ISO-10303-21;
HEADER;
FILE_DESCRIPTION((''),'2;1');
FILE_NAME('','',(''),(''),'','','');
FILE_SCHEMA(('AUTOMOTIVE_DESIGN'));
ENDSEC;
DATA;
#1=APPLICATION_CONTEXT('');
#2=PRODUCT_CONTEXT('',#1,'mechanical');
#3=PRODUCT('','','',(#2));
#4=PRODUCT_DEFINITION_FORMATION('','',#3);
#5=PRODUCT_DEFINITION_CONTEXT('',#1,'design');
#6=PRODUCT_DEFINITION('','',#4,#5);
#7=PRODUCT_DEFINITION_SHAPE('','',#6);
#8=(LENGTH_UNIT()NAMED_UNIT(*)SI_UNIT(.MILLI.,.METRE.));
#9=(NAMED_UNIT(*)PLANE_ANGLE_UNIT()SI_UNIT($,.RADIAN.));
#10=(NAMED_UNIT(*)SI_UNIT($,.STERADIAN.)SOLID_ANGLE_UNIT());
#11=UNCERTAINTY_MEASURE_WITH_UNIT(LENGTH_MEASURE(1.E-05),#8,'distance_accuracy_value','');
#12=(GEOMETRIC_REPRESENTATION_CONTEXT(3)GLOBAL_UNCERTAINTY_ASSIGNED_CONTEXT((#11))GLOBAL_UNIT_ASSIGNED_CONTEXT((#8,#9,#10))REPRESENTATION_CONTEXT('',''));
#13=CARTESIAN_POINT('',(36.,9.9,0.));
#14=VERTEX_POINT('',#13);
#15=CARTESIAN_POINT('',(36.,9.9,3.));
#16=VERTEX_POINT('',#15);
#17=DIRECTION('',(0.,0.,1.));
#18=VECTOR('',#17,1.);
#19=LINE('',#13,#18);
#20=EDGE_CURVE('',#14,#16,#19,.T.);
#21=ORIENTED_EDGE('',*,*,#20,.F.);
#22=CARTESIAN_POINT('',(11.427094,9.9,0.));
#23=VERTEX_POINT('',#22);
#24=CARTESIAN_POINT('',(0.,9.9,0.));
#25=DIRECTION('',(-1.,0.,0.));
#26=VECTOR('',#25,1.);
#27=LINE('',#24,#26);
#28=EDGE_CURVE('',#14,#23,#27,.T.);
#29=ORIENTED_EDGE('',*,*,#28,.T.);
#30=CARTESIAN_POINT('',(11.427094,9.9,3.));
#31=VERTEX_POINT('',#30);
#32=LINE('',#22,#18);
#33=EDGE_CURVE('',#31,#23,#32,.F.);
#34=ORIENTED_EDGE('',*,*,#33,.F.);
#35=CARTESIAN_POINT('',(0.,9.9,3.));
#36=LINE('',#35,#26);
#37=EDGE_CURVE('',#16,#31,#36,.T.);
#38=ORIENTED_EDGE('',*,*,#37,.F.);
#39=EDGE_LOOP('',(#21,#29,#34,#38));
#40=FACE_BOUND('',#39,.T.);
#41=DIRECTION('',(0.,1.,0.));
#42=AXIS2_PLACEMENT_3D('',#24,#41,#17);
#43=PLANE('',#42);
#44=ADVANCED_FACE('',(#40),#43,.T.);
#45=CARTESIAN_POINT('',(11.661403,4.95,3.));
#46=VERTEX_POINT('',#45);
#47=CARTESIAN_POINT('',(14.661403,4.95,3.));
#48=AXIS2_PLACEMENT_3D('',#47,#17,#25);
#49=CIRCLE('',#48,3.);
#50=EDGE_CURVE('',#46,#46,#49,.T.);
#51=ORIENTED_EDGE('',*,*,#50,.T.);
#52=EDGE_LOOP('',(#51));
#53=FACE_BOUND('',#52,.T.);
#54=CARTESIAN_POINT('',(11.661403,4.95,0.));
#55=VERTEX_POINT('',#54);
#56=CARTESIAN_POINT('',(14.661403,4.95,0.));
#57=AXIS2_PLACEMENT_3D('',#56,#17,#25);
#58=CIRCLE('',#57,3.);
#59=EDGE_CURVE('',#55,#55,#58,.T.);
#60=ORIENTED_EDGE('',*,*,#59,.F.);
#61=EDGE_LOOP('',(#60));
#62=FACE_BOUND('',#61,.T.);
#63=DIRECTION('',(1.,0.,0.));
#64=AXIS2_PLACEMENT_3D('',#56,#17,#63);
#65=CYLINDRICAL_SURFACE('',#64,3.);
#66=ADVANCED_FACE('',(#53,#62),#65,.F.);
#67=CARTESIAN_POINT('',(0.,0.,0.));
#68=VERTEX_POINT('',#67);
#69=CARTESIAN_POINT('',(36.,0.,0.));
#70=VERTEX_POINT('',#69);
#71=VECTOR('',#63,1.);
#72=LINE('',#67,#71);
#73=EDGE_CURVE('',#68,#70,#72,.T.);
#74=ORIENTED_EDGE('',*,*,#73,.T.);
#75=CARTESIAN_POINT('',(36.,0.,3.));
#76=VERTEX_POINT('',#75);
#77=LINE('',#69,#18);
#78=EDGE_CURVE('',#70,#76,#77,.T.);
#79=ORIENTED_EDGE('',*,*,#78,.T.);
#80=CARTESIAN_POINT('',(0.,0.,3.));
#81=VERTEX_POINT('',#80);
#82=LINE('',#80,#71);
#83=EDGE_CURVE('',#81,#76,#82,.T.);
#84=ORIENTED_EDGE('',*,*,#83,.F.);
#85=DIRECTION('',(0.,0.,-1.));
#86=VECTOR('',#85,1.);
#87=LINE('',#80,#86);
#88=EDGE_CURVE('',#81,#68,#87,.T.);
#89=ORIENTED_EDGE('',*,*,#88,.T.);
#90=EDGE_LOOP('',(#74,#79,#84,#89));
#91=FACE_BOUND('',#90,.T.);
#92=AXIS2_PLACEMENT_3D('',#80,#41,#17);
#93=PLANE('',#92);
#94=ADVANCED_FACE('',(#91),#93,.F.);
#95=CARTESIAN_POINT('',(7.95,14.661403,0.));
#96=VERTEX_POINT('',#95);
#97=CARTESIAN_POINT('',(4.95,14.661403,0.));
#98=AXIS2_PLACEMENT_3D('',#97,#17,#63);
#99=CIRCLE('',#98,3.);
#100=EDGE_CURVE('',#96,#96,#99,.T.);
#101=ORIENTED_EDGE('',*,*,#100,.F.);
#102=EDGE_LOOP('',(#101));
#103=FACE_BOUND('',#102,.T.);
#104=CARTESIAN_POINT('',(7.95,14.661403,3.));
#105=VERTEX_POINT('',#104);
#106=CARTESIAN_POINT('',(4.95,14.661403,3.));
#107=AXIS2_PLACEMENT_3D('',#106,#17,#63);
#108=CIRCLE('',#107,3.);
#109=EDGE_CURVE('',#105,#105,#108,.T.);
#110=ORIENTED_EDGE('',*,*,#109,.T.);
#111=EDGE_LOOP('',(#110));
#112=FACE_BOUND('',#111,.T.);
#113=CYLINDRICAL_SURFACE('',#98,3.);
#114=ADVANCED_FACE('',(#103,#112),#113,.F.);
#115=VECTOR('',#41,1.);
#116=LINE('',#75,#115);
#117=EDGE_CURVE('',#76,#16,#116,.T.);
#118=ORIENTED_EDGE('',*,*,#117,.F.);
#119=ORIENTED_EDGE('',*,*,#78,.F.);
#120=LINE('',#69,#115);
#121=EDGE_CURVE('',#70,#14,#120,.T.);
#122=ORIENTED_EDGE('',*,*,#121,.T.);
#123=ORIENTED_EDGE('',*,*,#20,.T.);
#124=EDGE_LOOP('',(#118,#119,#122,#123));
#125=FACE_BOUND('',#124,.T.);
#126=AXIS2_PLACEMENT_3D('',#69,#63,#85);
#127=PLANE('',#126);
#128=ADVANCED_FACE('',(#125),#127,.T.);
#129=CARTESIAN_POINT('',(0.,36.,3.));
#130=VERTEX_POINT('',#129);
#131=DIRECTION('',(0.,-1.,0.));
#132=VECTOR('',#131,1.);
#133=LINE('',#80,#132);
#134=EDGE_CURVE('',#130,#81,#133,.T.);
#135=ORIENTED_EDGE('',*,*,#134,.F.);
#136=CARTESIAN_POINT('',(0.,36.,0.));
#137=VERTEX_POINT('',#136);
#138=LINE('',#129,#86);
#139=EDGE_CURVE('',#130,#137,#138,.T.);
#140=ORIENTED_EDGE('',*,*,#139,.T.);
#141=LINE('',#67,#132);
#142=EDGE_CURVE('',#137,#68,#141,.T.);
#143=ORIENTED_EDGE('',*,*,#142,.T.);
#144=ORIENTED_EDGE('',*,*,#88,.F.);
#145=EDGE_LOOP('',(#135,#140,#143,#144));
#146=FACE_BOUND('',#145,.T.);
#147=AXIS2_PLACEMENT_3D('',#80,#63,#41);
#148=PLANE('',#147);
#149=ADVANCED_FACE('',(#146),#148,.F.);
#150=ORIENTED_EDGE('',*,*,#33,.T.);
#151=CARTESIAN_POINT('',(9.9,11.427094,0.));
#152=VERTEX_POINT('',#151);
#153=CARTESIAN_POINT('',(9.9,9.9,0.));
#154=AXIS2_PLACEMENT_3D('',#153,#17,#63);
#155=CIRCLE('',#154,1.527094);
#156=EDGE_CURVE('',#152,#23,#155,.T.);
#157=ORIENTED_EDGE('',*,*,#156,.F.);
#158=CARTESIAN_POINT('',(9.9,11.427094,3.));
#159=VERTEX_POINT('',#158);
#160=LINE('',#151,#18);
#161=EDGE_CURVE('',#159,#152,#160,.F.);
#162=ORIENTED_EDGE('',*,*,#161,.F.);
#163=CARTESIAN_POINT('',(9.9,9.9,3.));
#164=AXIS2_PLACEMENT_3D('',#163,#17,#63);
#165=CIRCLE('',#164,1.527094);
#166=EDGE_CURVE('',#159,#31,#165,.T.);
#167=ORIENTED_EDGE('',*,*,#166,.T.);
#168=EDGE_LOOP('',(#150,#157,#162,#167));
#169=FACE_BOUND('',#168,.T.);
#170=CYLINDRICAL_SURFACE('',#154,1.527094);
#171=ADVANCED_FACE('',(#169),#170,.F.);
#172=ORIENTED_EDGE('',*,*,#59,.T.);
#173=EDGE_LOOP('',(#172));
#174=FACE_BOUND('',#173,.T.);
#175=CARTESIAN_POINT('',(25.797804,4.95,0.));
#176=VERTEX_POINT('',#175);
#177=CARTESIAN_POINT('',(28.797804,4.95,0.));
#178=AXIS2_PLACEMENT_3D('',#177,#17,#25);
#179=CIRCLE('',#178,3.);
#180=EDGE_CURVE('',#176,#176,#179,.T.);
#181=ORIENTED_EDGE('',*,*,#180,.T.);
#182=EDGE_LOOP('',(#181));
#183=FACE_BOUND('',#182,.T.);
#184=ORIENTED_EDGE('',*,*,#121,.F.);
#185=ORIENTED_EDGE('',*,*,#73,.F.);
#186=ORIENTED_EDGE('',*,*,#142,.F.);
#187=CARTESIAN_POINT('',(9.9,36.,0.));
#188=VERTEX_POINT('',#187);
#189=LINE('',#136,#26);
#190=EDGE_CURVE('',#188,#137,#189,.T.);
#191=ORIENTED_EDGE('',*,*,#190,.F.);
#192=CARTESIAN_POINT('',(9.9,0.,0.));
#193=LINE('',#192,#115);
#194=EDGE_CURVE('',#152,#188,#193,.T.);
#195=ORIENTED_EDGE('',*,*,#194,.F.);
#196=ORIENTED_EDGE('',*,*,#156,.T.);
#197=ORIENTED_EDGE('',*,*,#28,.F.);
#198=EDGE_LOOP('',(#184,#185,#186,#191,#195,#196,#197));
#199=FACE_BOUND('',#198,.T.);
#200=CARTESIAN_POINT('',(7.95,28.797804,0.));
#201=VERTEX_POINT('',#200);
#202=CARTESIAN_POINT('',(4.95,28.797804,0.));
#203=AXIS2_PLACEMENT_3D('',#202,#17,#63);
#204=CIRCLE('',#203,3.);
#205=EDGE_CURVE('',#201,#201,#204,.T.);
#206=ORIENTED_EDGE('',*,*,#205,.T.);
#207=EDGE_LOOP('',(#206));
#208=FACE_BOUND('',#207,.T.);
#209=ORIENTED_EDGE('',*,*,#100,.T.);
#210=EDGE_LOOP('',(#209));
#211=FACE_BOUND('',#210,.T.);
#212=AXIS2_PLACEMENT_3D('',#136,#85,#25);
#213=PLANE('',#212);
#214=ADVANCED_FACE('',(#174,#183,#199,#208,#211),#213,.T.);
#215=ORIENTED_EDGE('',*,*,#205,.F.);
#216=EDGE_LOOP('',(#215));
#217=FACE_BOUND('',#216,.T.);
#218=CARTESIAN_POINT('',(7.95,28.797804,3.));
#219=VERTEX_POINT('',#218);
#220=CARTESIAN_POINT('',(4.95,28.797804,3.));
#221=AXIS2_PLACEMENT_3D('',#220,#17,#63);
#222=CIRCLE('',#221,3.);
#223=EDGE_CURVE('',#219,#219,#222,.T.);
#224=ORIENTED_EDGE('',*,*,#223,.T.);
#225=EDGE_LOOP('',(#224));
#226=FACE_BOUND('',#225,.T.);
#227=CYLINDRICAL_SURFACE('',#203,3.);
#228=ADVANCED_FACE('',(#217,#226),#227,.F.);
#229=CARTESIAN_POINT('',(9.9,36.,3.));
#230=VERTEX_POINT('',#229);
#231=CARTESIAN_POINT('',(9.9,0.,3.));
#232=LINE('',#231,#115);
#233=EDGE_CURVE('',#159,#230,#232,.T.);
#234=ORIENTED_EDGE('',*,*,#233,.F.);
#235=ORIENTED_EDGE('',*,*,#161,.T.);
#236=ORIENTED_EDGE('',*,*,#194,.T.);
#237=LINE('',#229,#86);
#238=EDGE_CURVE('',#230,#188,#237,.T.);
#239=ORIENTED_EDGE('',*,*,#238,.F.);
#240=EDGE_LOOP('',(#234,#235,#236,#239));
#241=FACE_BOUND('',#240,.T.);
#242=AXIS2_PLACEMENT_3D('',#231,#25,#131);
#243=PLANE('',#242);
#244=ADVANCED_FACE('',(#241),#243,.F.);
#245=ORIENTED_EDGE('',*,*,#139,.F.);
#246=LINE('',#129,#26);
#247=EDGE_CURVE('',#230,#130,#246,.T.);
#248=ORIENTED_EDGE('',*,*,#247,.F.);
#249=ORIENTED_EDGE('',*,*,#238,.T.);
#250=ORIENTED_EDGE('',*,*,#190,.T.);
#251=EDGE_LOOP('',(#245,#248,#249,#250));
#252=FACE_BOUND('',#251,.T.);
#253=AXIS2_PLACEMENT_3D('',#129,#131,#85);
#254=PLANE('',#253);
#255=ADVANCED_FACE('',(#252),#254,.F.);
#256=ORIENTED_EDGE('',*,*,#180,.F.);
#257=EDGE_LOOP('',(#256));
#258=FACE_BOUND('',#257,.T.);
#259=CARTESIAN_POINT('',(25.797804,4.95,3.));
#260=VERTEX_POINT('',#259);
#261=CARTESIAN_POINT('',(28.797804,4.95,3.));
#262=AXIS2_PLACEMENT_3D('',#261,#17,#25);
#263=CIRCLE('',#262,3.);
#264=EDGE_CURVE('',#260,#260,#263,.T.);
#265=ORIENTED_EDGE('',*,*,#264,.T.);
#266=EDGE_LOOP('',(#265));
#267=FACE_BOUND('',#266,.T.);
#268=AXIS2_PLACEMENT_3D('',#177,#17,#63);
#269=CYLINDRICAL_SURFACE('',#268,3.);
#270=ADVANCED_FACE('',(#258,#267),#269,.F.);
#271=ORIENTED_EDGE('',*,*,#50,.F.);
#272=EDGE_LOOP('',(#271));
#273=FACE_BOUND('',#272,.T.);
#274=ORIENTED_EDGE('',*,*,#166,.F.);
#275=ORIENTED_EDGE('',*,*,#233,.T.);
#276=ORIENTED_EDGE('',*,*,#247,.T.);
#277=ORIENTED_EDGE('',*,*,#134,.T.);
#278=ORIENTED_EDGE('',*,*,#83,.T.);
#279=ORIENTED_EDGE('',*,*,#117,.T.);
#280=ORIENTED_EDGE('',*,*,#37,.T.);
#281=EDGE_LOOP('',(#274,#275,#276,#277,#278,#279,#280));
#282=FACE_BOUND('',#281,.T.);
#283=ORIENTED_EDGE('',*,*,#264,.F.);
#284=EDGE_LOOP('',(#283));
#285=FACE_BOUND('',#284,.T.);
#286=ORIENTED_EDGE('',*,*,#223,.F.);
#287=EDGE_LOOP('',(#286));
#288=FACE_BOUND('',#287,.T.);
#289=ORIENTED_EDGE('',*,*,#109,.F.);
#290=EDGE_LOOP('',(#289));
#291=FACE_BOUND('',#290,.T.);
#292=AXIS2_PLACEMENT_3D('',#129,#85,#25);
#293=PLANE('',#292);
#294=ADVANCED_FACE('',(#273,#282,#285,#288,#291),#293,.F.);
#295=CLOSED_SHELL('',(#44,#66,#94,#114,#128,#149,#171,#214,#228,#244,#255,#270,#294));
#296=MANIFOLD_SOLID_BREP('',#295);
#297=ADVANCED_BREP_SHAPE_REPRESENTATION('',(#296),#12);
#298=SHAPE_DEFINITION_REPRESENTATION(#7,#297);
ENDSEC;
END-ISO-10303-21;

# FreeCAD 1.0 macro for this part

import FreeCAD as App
import Part
import Sketcher

V = App.Vector
Q = App.Units.Quantity


def add_polygon(sketch, points):
    """Adds a closed chain of lines whose ends are joined by coincident constraints."""
    first, n = sketch.GeometryCount, len(points)
    for a, b in zip(points, points[1:] + points[:1]):
        sketch.addGeometry(Part.LineSegment(App.Vector(*a, 0), App.Vector(*b, 0)), False)
    for i in range(n):
        sketch.addConstraint(Sketcher.Constraint("Coincident", first + i, 2, first + (i + 1) % n, 1))

doc = App.newDocument("Part")
body = doc.addObject("PartDesign::Body", "Body")

# Sketch on XY plane
sketch1 = body.newObject("Sketcher::SketchObject", "Sketch")
sketch1.AttachmentSupport = (doc.getObject("XY_Plane"), [""])
sketch1.MapMode = "FlatFace"
add_polygon(sketch1, [(0, 36), (0, 0), (10, 0), (10, 36)])  # lines 0-3
sketch1.addConstraint([
    Sketcher.Constraint("Vertical", 0),
    Sketcher.Constraint("Horizontal", 1),
    Sketcher.Constraint("Vertical", 2),
    Sketcher.Constraint("Horizontal", 3),
    Sketcher.Constraint("Coincident", 0, 2, -1, 1),
    Sketcher.Constraint("DistanceY", 0, 2, 0, 1, Q("36 mm")),
    Sketcher.Constraint("DistanceX", 1, 1, 1, 2, Q("9.9 mm")),
])
pad1 = body.newObject("PartDesign::Pad", "Pad")
pad1.Profile = sketch1
pad1.Length = 3

# Sketch on XY plane
sketch2 = body.newObject("Sketcher::SketchObject", "Sketch001")
sketch2.AttachmentSupport = (doc.getObject("XY_Plane"), [""])
sketch2.MapMode = "FlatFace"
sketch2.AttachmentOffset = App.Placement(V(0, 0, 3), App.Rotation())
add_polygon(sketch2, [(0, 10), (0, 0), (36, 0), (36, 10)])  # lines 0-3
sketch2.addConstraint([
    Sketcher.Constraint("Vertical", 0),
    Sketcher.Constraint("Horizontal", 1),
    Sketcher.Constraint("Vertical", 2),
    Sketcher.Constraint("Horizontal", 3),
    Sketcher.Constraint("Coincident", 0, 2, -1, 1),
    Sketcher.Constraint("DistanceX", 1, 1, 1, 2, Q("36 mm")),
    Sketcher.Constraint("DistanceY", 0, 2, 0, 1, Q("9.9 mm")),
])
pad2 = body.newObject("PartDesign::Pad", "Pad001")
pad2.Profile = sketch2
pad2.Length = 3
pad2.Reversed = True

# Sketch on XY plane
sketch3 = body.newObject("Sketcher::SketchObject", "Sketch002")
sketch3.AttachmentSupport = (doc.getObject("XY_Plane"), [""])
sketch3.MapMode = "FlatFace"
sketch3.AttachmentOffset = App.Placement(V(0, 0, 3), App.Rotation())
sketch3.addGeometry([
    Part.Circle(V(5, 28.8, 0), V(0, 0, 1), 3),
    Part.Circle(V(5, 14.7, 0), V(0, 0, 1), 3),
    Part.Circle(V(14.7, 5, 0), V(0, 0, 1), 3),
    Part.Circle(V(28.8, 5, 0), V(0, 0, 1), 3),
], False)
sketch3.addConstraint([
    Sketcher.Constraint("Equal", 0, 1),
    Sketcher.Constraint("Equal", 1, 2),
    Sketcher.Constraint("Equal", 2, 3),
    Sketcher.Constraint("Horizontal", 2, 3, 3, 3),
    Sketcher.Constraint("Vertical", 0, 3, 1, 3),
    Sketcher.Constraint("Diameter", 0, Q("6 mm")),
    Sketcher.Constraint("DistanceX", -1, 1, 0, 3, Q("4.95 mm")),
    Sketcher.Constraint("DistanceY", -1, 1, 2, 3, Q("4.95 mm")),
    Sketcher.Constraint("DistanceY", 1, 3, 0, 3, Q("14.136401 mm")),
    Sketcher.Constraint("DistanceX", 2, 3, 3, 3, Q("14.136401 mm")),
    Sketcher.Constraint("DistanceY", -1, 1, 0, 3, Q("28.797804 mm")),
    Sketcher.Constraint("DistanceX", -1, 1, 2, 3, Q("14.661403 mm")),
])
pocket1 = body.newObject("PartDesign::Pocket", "Pocket")
pocket1.Profile = sketch3
pocket1.Type = "ThroughAll"

# Sketch on XY plane
sketch4 = body.newObject("Sketcher::SketchObject", "Sketch003")
sketch4.AttachmentSupport = (doc.getObject("XY_Plane"), [""])
sketch4.MapMode = "FlatFace"
sketch4.AttachmentOffset = App.Placement(V(0, 0, 3), App.Rotation())
sketch4.addGeometry(Part.Circle(V(9.9, 9.9, 0), V(0, 0, 1), 1.5), False)
sketch4.addConstraint([
    Sketcher.Constraint("DistanceX", -1, 1, 0, 3, Q("9.9 mm")),
    Sketcher.Constraint("DistanceY", -1, 1, 0, 3, Q("9.9 mm")),
    Sketcher.Constraint("Diameter", 0, Q("3.054189 mm")),
])
pocket2 = body.newObject("PartDesign::Pocket", "Pocket001")
pocket2.Profile = sketch4
pocket2.Type = "ThroughAll"

doc.recompute()
